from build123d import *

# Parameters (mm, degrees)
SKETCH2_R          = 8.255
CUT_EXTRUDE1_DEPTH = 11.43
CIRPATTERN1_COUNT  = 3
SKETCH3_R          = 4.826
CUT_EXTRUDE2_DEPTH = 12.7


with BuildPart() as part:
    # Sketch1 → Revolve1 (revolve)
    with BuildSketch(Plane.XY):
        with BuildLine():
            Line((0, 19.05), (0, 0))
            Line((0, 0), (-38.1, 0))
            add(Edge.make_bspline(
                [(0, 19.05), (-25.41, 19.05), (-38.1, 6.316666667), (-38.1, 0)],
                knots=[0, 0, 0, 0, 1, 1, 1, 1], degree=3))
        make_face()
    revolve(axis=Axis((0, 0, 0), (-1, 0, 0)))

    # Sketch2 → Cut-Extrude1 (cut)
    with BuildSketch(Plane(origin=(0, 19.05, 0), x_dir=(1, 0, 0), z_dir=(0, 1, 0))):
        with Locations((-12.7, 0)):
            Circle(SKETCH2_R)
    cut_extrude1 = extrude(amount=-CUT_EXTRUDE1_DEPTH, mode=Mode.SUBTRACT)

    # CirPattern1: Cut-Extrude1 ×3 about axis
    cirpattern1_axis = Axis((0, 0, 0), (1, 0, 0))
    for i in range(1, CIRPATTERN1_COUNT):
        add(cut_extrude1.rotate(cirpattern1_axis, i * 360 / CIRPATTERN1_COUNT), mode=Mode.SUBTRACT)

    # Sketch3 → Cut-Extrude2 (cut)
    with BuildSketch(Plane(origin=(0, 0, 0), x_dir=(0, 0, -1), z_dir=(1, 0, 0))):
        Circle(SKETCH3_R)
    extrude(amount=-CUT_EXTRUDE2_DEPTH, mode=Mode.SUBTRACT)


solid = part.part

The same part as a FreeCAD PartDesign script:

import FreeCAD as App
import Part
import Sketcher
from FreeCAD import Vector
Q = App.Units.Quantity

doc = App.newDocument("Part")
body = doc.addObject("PartDesign::Body", "Body")

# Sketch on XY plane
sketch1 = body.newObject("Sketcher::SketchObject", "Sketch")
sketch1.AttachmentSupport = (doc.getObject("XY_Plane"), [""])
sketch1.MapMode = "FlatFace"
sketch1.addGeometry([
    Part.LineSegment(Vector(0, 0, 0), Vector(0, 19.05, 0)),
    Part.BSplineCurve([Vector(0, 19.05, 0), Vector(-25.41, 19.05, 0), Vector(-38.1, 6.316667, 0), Vector(-38.1, 0, 0)], [4, 4], [0, 1], False, 3, [1, 1, 1, 1], False),
    Part.LineSegment(Vector(-38.1, 0, 0), Vector(0, 0, 0)),
], False)
sketch1.addConstraint([
    Sketcher.Constraint("Block", 1),
    Sketcher.Constraint("Coincident", 0, 2, 1, 1),
    Sketcher.Constraint("Coincident", 1, 2, 2, 1),
    Sketcher.Constraint("Coincident", 2, 2, 0, 1),
    Sketcher.Constraint("Vertical", 0),
    Sketcher.Constraint("Horizontal", 2),
])
revolution = body.newObject("PartDesign::Revolution", "Revolution")
revolution.Profile = sketch1
revolution.ReferenceAxis = (sketch1, ["H_Axis"])
revolution.Angle = 360

# Sketch on XZ plane
sketch2 = body.newObject("Sketcher::SketchObject", "Sketch001")
sketch2.AttachmentSupport = (doc.getObject("XZ_Plane"), [""])
sketch2.MapMode = "FlatFace"
sketch2.AttachmentOffset = App.Placement(Vector(0, 0, -0.75 * 25.4), App.Rotation())
sketch2.addGeometry(Part.Circle(Vector(-13, 0, 0), Vector(0, 0, 1), 8), False)
sketch2.addConstraint([
    Sketcher.Constraint("PointOnObject", 0, 3, -1),
    Sketcher.Constraint("Diameter", 0, Q("0.65 in")),
    Sketcher.Constraint("DistanceX", 0, 3, -1, 1, Q("0.5 in")),
])
pocket1 = body.newObject("PartDesign::Pocket", "Pocket")
pocket1.Profile = sketch2
pocket1.Length = Q("0.45 in")
pocket1.Reversed = True
doc.recompute()

polarpattern = body.newObject("PartDesign::PolarPattern", "PolarPattern")
polarpattern.Originals = [pocket1]
polarpattern.Axis = (doc.getObject("X_Axis"), [""])
polarpattern.Angle = 360
polarpattern.Occurrences = 3
body.Tip = polarpattern

# Sketch on YZ plane
sketch3 = body.newObject("Sketcher::SketchObject", "Sketch002")
sketch3.AttachmentSupport = (doc.getObject("YZ_Plane"), [""])
sketch3.MapMode = "FlatFace"
sketch3.addGeometry(Part.Circle(Vector(0, 0, 0), Vector(0, 0, 1), 4.8), False)
sketch3.addConstraint([
    Sketcher.Constraint("Coincident", 0, 3, -1, 1),
    Sketcher.Constraint("Diameter", 0, Q("0.38 in")),
])
pocket2 = body.newObject("PartDesign::Pocket", "Pocket001")
pocket2.Profile = sketch3
pocket2.Length = Q("0.5 in")

doc.recompute()
